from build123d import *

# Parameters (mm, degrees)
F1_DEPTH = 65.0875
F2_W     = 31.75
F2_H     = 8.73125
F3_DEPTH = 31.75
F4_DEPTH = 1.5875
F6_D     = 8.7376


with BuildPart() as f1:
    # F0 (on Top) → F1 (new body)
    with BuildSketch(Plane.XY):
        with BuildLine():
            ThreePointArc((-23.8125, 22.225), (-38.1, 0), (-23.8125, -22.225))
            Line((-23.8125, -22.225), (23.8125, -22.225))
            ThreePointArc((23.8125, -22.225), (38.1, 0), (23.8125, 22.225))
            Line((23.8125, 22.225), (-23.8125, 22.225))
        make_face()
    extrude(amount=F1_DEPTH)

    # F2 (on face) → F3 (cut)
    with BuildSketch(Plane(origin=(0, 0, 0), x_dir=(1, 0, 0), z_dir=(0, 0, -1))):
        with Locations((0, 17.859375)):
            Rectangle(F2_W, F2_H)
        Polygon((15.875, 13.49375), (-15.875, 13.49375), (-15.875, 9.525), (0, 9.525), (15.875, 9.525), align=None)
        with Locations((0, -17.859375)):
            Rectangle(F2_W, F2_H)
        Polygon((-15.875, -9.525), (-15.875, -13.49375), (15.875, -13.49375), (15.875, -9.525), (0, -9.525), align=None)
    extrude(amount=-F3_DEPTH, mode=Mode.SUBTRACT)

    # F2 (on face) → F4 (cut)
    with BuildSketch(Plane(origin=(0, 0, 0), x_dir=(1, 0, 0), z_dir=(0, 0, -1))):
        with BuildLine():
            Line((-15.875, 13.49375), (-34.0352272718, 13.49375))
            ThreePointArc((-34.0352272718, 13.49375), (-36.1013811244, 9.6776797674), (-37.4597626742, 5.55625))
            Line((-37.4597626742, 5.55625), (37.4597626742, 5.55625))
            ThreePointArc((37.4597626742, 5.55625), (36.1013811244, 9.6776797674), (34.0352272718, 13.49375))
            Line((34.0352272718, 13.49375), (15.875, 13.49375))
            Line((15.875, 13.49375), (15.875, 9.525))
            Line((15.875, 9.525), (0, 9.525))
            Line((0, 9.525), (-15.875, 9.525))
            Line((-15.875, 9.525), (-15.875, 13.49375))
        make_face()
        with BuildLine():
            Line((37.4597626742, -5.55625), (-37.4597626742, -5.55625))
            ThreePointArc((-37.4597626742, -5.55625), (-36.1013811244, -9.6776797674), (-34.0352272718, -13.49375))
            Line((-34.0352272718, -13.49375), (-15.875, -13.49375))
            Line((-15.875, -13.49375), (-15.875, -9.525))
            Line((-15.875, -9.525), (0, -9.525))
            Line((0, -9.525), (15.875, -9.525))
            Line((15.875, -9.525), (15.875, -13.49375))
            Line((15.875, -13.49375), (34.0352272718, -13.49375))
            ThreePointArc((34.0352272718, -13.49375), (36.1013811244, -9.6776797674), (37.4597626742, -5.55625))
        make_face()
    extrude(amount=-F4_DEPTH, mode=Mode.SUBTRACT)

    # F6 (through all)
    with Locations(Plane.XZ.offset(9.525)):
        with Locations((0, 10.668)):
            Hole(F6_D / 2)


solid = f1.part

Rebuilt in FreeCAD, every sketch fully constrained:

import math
import FreeCAD as App
import Part
import Sketcher
from FreeCAD import Vector
Q = App.Units.Quantity

doc = App.newDocument("Part")
body = doc.addObject("PartDesign::Body", "Body")

sketch1 = body.newObject("Sketcher::SketchObject", "Sketch")
sketch1.AttachmentSupport = (doc.getObject("XY_Plane"), [""])
sketch1.MapMode = "FlatFace"
sketch1.addGeometry([
    Part.ArcOfCircle(Part.Circle(Vector(-14, 0, 0), Vector(0, 0, 1), 24), math.radians(115), math.radians(245)),
    Part.LineSegment(Vector(-24, -22, 0), Vector(24, -22, 0)),
    Part.ArcOfCircle(Part.Circle(Vector(14, 0, 0), Vector(0, 0, 1), 24), math.radians(-65), math.radians(65)),
    Part.LineSegment(Vector(24, 22, 0), Vector(-24, 22, 0)),
], False)
sketch1.addConstraint([
    Sketcher.Constraint("Coincident", 0, 2, 1, 1),
    Sketcher.Constraint("Coincident", 1, 2, 2, 1),
    Sketcher.Constraint("Coincident", 2, 2, 3, 1),
    Sketcher.Constraint("Coincident", 3, 2, 0, 1),
    Sketcher.Constraint("Horizontal", 1),
    Sketcher.Constraint("Horizontal", 3),
    Sketcher.Constraint("Equal", 0, 2),
    Sketcher.Constraint("Symmetric", 0, 3, 2, 3, -1, 1),
    Sketcher.Constraint("Symmetric", 1, 2, 2, 2, -1),
    Sketcher.Constraint("DistanceX", 1, 1, 1, 2, Q("1.875 in")),
    Sketcher.Constraint("DistanceY", 1, 2, 2, 2, Q("1.75 in")),
    Sketcher.Constraint("Radius", 0, 24.429861),
])
pad1 = body.newObject("PartDesign::Pad", "Pad")
pad1.Profile = sketch1
pad1.Length = Q("2.5625 in")

sketch2 = body.newObject("Sketcher::SketchObject", "Sketch001")
sketch2.AttachmentSupport = (doc.getObject("XY_Plane"), [""])
sketch2.MapMode = "FlatFace"
sketch2.addGeometry([
    Part.LineSegment(Vector(-16, -22, 0), Vector(-16, -10, 0)),
    Part.LineSegment(Vector(-16, -10, 0), Vector(16, -10, 0)),
    Part.LineSegment(Vector(16, -10, 0), Vector(16, -22, 0)),
    Part.LineSegment(Vector(16, -22, 0), Vector(-16, -22, 0)),
    Part.LineSegment(Vector(-16, 22, 0), Vector(16, 22, 0)),
    Part.LineSegment(Vector(16, 22, 0), Vector(16, 10, 0)),
    Part.LineSegment(Vector(16, 10, 0), Vector(-16, 10, 0)),
    Part.LineSegment(Vector(-16, 10, 0), Vector(-16, 22, 0)),
], False)
sketch2.addConstraint([
    Sketcher.Constraint("Coincident", 0, 2, 1, 1),
    Sketcher.Constraint("Coincident", 1, 2, 2, 1),
    Sketcher.Constraint("Coincident", 2, 2, 3, 1),
    Sketcher.Constraint("Coincident", 3, 2, 0, 1),
    Sketcher.Constraint("Coincident", 4, 2, 5, 1),
    Sketcher.Constraint("Coincident", 5, 2, 6, 1),
    Sketcher.Constraint("Coincident", 6, 2, 7, 1),
    Sketcher.Constraint("Coincident", 7, 2, 4, 1),
    Sketcher.Constraint("Vertical", 0),
    Sketcher.Constraint("Horizontal", 1),
    Sketcher.Constraint("Vertical", 2),
    Sketcher.Constraint("Horizontal", 3),
    Sketcher.Constraint("Horizontal", 4),
    Sketcher.Constraint("Vertical", 5),
    Sketcher.Constraint("Horizontal", 6),
    Sketcher.Constraint("Vertical", 7),
    Sketcher.Constraint("Symmetric", 3, 2, 4, 2, -1, 1),
    Sketcher.Constraint("Symmetric", 1, 2, 6, 2, -1, 1),
    Sketcher.Constraint("Vertical", 2, 2, 4, 2),
    Sketcher.Constraint("DistanceY", 0, 1, 0, 2, Q("0.5 in")),
    Sketcher.Constraint("DistanceX", 1, 1, 1, 2, Q("1.25 in")),
    Sketcher.Constraint("DistanceY", 1, 2, 4, 2, Q("1.25 in")),
])
pocket1 = body.newObject("PartDesign::Pocket", "Pocket")
pocket1.Profile = sketch2
pocket1.Length = Q("1.25 in")
pocket1.Reversed = True

sketch3 = body.newObject("Sketcher::SketchObject", "Sketch002")
sketch3.AttachmentSupport = (doc.getObject("XY_Plane"), [""])
sketch3.MapMode = "FlatFace"
sketch3.addGeometry([
    Part.LineSegment(Vector(-15.9, -13.5, 0), Vector(-34, -13.5, 0)),
    Part.ArcOfCircle(Part.Circle(Vector(-13.7, 0, 0), Vector(0, 0, 1), 24.4), math.radians(-167), math.radians(-146)),
    Part.LineSegment(Vector(-37.5, -5.6, 0), Vector(37.5, -5.6, 0)),
    Part.ArcOfCircle(Part.Circle(Vector(13.7, 0, 0), Vector(0, 0, 1), 24.4), math.radians(-34), math.radians(-13)),
    Part.LineSegment(Vector(34, -13.5, 0), Vector(15.9, -13.5, 0)),
    Part.LineSegment(Vector(15.9, -13.5, 0), Vector(15.9, -9.5, 0)),
    Part.LineSegment(Vector(15.9, -9.5, 0), Vector(-15.9, -9.5, 0)),
    Part.LineSegment(Vector(-15.9, -9.5, 0), Vector(-15.9, -13.5, 0)),
    Part.LineSegment(Vector(37.5, 5.6, 0), Vector(-37.5, 5.6, 0)),
    Part.ArcOfCircle(Part.Circle(Vector(-13.7, 0, 0), Vector(0, 0, 1), 24.4), math.radians(146), math.radians(167)),
    Part.LineSegment(Vector(-34, 13.5, 0), Vector(-15.9, 13.5, 0)),
    Part.LineSegment(Vector(-15.9, 13.5, 0), Vector(-15.9, 9.5, 0)),
    Part.LineSegment(Vector(-15.9, 9.5, 0), Vector(15.9, 9.5, 0)),
    Part.LineSegment(Vector(15.9, 9.5, 0), Vector(15.9, 13.5, 0)),
    Part.LineSegment(Vector(15.9, 13.5, 0), Vector(34, 13.5, 0)),
    Part.ArcOfCircle(Part.Circle(Vector(13.7, 0, 0), Vector(0, 0, 1), 24.4), math.radians(13), math.radians(34)),
], False)
sketch3.addConstraint([
    Sketcher.Constraint("Coincident", 0, 2, 1, 2),
    Sketcher.Constraint("Coincident", 1, 1, 2, 1),
    Sketcher.Constraint("Coincident", 2, 2, 3, 2),
    Sketcher.Constraint("Coincident", 3, 1, 4, 1),
    Sketcher.Constraint("Coincident", 4, 2, 5, 1),
    Sketcher.Constraint("Coincident", 5, 2, 6, 1),
    Sketcher.Constraint("Coincident", 6, 2, 7, 1),
    Sketcher.Constraint("Coincident", 7, 2, 0, 1),
    Sketcher.Constraint("Coincident", 8, 2, 9, 2),
    Sketcher.Constraint("Coincident", 9, 1, 10, 1),
    Sketcher.Constraint("Coincident", 10, 2, 11, 1),
    Sketcher.Constraint("Coincident", 11, 2, 12, 1),
    Sketcher.Constraint("Coincident", 12, 2, 13, 1),
    Sketcher.Constraint("Coincident", 13, 2, 14, 1),
    Sketcher.Constraint("Coincident", 14, 2, 15, 2),
    Sketcher.Constraint("Coincident", 15, 1, 8, 1),
    Sketcher.Constraint("Horizontal", 0),
    Sketcher.Constraint("Horizontal", 2),
    Sketcher.Constraint("Horizontal", 4),
    Sketcher.Constraint("Vertical", 5),
    Sketcher.Constraint("Horizontal", 6),
    Sketcher.Constraint("Vertical", 7),
    Sketcher.Constraint("Horizontal", 8),
    Sketcher.Constraint("Horizontal", 10),
    Sketcher.Constraint("Vertical", 11),
    Sketcher.Constraint("Horizontal", 12),
    Sketcher.Constraint("Vertical", 13),
    Sketcher.Constraint("Horizontal", 14),
    Sketcher.Constraint("Coincident", 9, 3, 1, 3),
    Sketcher.Constraint("Coincident", 15, 3, 3, 3),
    Sketcher.Constraint("Equal", 1, 3),
    Sketcher.Constraint("Equal", 3, 9),
    Sketcher.Constraint("Equal", 9, 15),
    Sketcher.Constraint("Symmetric", 1, 3, 3, 3, -1, 1),
    Sketcher.Constraint("Symmetric", 4, 2, 10, 2, -1, 1),
    Sketcher.Constraint("Symmetric", 6, 2, 12, 2, -1, 1),
    Sketcher.Constraint("Symmetric", 0, 2, 3, 1, -2),
    Sketcher.Constraint("Symmetric", 10, 2, 13, 2, -2),
    Sketcher.Constraint("Vertical", 1, 1, 8, 2),
    Sketcher.Constraint("DistanceX", 6, 2, 6, 1, Q("1.25 in")),
    Sketcher.Constraint("DistanceY", 5, 1, 5, 2, Q("0.15625 in")),
    Sketcher.Constraint("DistanceY", 0, 2, 8, 2, Q("0.75 in")),
    Sketcher.Constraint("DistanceY", 6, 2, 11, 2, Q("0.75 in")),
    Sketcher.Constraint("Radius", 1, 24.429861),
    Sketcher.Constraint("DistanceX", 1, 1, 3, 3, 51.129902),
])
pocket2 = body.newObject("PartDesign::Pocket", "Pocket001")
pocket2.Profile = sketch3
pocket2.Length = Q("0.0625 in")
pocket2.Reversed = True

sketch4 = body.newObject("Sketcher::SketchObject", "Sketch003")
sketch4.AttachmentSupport = (doc.getObject("XZ_Plane"), [""])
sketch4.MapMode = "FlatFace"
sketch4.AttachmentOffset = App.Placement(Vector(0, 0, 0.375 * 25.4), App.Rotation())
sketch4.addGeometry(Part.Circle(Vector(0, 10.7, 0), Vector(0, 0, 1), 4.4), False)
sketch4.addConstraint([
    Sketcher.Constraint("PointOnObject", 0, 3, -2),
    Sketcher.Constraint("Diameter", 0, Q("0.344 in")),
    Sketcher.Constraint("DistanceY", -1, 1, 0, 3, Q("0.42 in")),
])
doc.recompute()
hole = body.newObject("PartDesign::Hole", "Hole")
hole.Profile = sketch4
hole.ThreadType = "None"
hole.Diameter = Q("0.344 in")
hole.DepthType = "ThroughAll"

doc.recompute()
